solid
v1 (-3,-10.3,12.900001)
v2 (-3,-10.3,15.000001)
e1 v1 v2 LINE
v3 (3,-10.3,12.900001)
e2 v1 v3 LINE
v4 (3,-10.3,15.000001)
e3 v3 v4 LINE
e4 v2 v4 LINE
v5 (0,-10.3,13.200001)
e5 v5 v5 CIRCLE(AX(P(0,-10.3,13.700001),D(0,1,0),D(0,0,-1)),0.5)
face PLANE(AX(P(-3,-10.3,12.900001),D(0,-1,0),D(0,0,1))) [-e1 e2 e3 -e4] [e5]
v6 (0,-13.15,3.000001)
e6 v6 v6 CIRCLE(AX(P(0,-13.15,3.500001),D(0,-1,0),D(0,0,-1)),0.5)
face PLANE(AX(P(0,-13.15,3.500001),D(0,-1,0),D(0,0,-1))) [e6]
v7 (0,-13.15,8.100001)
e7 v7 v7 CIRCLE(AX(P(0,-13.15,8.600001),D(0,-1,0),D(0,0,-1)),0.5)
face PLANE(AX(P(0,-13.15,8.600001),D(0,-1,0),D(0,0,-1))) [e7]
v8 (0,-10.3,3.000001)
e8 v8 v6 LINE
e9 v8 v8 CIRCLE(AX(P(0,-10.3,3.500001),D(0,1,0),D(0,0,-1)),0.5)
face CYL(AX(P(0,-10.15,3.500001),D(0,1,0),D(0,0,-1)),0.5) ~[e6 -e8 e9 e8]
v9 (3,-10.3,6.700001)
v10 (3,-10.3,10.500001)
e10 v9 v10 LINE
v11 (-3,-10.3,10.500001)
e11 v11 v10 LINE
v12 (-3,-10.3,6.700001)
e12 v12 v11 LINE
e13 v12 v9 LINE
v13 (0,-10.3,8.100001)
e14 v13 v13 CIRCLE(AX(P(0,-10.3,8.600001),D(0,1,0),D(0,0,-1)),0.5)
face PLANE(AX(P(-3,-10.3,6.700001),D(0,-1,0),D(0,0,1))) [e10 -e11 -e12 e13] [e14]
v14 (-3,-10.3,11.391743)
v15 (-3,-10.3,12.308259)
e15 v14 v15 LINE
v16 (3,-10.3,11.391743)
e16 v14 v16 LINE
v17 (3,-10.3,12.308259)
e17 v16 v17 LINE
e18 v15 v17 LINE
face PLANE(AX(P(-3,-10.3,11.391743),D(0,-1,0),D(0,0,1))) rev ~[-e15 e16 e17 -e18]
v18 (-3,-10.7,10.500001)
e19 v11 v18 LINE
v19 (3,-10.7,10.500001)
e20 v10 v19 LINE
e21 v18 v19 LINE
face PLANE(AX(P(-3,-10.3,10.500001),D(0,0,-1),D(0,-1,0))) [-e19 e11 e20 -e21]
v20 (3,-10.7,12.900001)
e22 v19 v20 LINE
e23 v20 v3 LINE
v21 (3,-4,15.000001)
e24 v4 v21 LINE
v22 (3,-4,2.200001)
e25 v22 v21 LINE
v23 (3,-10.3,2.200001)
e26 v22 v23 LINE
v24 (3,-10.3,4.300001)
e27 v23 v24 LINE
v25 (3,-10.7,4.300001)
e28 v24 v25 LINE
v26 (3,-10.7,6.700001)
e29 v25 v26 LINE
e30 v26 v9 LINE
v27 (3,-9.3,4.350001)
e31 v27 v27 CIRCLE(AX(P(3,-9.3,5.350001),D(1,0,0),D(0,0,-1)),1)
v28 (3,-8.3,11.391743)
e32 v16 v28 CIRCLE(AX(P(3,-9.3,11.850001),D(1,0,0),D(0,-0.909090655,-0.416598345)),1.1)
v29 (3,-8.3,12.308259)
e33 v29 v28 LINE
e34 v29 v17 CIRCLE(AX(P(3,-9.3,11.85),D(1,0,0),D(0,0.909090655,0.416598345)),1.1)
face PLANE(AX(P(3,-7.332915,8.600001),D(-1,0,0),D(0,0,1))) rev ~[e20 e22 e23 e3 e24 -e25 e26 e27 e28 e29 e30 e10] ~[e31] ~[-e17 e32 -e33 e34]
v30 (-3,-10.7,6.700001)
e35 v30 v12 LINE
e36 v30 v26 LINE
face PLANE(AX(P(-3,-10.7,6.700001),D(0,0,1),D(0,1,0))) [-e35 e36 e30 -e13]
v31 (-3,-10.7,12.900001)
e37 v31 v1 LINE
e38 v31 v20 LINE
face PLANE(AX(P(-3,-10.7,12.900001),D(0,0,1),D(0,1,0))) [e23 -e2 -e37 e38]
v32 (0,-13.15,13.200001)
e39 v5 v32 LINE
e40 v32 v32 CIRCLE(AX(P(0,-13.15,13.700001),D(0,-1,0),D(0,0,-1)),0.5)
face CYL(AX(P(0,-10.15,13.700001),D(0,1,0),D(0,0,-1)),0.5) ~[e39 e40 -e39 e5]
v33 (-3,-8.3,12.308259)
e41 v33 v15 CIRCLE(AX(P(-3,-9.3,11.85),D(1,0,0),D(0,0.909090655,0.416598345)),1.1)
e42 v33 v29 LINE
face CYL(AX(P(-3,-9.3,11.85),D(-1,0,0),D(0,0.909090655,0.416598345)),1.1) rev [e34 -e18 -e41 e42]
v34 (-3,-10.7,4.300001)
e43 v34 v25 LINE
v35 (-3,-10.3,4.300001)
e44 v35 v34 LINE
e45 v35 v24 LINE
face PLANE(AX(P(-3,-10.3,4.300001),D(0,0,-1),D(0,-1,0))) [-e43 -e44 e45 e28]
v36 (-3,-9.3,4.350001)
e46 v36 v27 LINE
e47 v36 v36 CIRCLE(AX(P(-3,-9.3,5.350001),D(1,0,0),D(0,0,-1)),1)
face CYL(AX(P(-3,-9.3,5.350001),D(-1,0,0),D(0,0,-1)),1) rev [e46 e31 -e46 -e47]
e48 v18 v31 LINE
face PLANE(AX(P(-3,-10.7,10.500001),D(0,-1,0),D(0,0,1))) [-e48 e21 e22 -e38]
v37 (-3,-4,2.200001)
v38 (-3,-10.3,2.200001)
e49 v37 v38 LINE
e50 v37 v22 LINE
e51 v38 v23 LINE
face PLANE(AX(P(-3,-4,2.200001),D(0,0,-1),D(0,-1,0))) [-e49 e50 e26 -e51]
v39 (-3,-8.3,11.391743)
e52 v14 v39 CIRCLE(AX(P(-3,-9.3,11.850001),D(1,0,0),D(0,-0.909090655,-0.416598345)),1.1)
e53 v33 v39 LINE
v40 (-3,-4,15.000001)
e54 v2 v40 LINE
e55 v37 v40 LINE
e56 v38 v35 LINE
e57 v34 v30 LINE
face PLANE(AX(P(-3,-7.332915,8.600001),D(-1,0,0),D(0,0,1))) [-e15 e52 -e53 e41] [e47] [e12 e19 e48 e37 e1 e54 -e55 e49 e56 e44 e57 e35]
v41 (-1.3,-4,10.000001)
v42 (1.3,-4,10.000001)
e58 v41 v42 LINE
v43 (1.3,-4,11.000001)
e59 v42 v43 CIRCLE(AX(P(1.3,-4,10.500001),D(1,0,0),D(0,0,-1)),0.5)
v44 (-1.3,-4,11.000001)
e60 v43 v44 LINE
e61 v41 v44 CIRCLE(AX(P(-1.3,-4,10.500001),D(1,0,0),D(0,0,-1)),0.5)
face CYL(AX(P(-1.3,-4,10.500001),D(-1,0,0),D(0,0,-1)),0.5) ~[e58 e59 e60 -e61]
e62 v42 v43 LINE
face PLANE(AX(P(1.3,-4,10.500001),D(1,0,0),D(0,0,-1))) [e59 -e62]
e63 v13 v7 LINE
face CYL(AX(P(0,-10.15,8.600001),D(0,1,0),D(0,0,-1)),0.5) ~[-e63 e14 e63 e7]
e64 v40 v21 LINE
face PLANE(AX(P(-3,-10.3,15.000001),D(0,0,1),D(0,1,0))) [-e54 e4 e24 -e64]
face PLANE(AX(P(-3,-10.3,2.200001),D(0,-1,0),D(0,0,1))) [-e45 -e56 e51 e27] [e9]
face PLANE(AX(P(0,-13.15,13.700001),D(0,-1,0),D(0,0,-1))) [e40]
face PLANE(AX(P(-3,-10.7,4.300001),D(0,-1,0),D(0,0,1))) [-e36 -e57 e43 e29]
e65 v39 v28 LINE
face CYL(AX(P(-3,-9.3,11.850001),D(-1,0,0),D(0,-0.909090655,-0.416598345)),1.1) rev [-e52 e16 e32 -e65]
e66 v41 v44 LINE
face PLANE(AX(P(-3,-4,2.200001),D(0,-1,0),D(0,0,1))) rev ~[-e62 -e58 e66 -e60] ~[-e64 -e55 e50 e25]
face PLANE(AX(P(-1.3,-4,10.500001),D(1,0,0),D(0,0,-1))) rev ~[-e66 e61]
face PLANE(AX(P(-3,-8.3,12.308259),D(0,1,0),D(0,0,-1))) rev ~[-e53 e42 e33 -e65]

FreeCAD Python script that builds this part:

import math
import FreeCAD as App
import Part
import Sketcher
from FreeCAD import Vector
Q = App.Units.Quantity

doc = App.newDocument("Part")
body = doc.addObject("PartDesign::Body", "Body")

# Sketch on XY plane
sketch1 = doc.addObject("Sketcher::SketchObject", "Sketch")
body.addObject(sketch1)
sketch1.AttachmentSupport = (doc.XY_Plane, [""])
sketch1.MapMode = "FlatFace"
sketch1.addGeometry(Part.LineSegment(Vector(6.4, -3.15, 0), Vector(6.4, 3.15, 0)), False)
sketch1.addGeometry(Part.LineSegment(Vector(6.4, 3.15, 0), Vector(-6.4, 3.15, 0)), False)
sketch1.addGeometry(Part.LineSegment(Vector(-6.4, 3.15, 0), Vector(-6.4, -3.15, 0)), False)
sketch1.addGeometry(Part.LineSegment(Vector(-6.4, -3.15, 0), Vector(-4.3, -3.15, 0)), False)
sketch1.addGeometry(Part.LineSegment(Vector(-4.3, -3.15, 0), Vector(-4.3, -3.55, 0)), False)
sketch1.addGeometry(Part.LineSegment(Vector(-4.3, -3.55, 0), Vector(-1.9, -3.55, 0)), False)
sketch1.addGeometry(Part.LineSegment(Vector(-1.9, -3.55, 0), Vector(-1.9, -3.15, 0)), False)
sketch1.addGeometry(Part.LineSegment(Vector(-1.9, -3.15, 0), Vector(1.9, -3.15, 0)), False)
sketch1.addGeometry(Part.LineSegment(Vector(1.9, -3.15, 0), Vector(1.9, -3.55, 0)), False)
sketch1.addGeometry(Part.LineSegment(Vector(1.9, -3.55, 0), Vector(4.3, -3.55, 0)), False)
sketch1.addGeometry(Part.LineSegment(Vector(4.3, -3.55, 0), Vector(4.3, -3.15, 0)), False)
sketch1.addGeometry(Part.LineSegment(Vector(4.3, -3.15, 0), Vector(6.4, -3.15, 0)), False)
sketch1.addGeometry(Part.Circle(Vector(3.25, -2.15, 0), Vector(0, 0, 1), 1), False)
sketch1.addGeometry(Part.LineSegment(Vector(-3.71, -1.15, 0), Vector(-2.79, -1.15, 0)), False)
sketch1.addGeometry(Part.ArcOfCircle(Part.Circle(Vector(-3.25, -2.15, 0), Vector(0, 0, 1), 1.1), math.radians(-65), math.radians(65)), False)
sketch1.addGeometry(Part.LineSegment(Vector(-2.79, -3.15, 0), Vector(-3.71, -3.15, 0)), False)
sketch1.addGeometry(Part.ArcOfCircle(Part.Circle(Vector(-3.25, -2.15, 0), Vector(0, 0, 1), 1.1), math.radians(115), math.radians(245)), False)
sketch1.addConstraint(Sketcher.Constraint("Coincident", 0, 2, 1, 1))
sketch1.addConstraint(Sketcher.Constraint("Coincident", 1, 2, 2, 1))
sketch1.addConstraint(Sketcher.Constraint("Coincident", 2, 2, 3, 1))
sketch1.addConstraint(Sketcher.Constraint("Coincident", 3, 2, 4, 1))
sketch1.addConstraint(Sketcher.Constraint("Coincident", 4, 2, 5, 1))
sketch1.addConstraint(Sketcher.Constraint("Coincident", 5, 2, 6, 1))
sketch1.addConstraint(Sketcher.Constraint("Coincident", 6, 2, 7, 1))
sketch1.addConstraint(Sketcher.Constraint("Coincident", 7, 2, 8, 1))
sketch1.addConstraint(Sketcher.Constraint("Coincident", 8, 2, 9, 1))
sketch1.addConstraint(Sketcher.Constraint("Coincident", 9, 2, 10, 1))
sketch1.addConstraint(Sketcher.Constraint("Coincident", 10, 2, 11, 1))
sketch1.addConstraint(Sketcher.Constraint("Coincident", 11, 2, 0, 1))
sketch1.addConstraint(Sketcher.Constraint("Coincident", 13, 2, 14, 2))
sketch1.addConstraint(Sketcher.Constraint("Coincident", 14, 1, 15, 1))
sketch1.addConstraint(Sketcher.Constraint("Coincident", 15, 2, 16, 2))
sketch1.addConstraint(Sketcher.Constraint("Coincident", 16, 1, 13, 1))
sketch1.addConstraint(Sketcher.Constraint("Vertical", 0))
sketch1.addConstraint(Sketcher.Constraint("Horizontal", 1))
sketch1.addConstraint(Sketcher.Constraint("Vertical", 2))
sketch1.addConstraint(Sketcher.Constraint("Horizontal", 3))
sketch1.addConstraint(Sketcher.Constraint("Vertical", 4))
sketch1.addConstraint(Sketcher.Constraint("Horizontal", 5))
sketch1.addConstraint(Sketcher.Constraint("Vertical", 6))
sketch1.addConstraint(Sketcher.Constraint("Horizontal", 7))
sketch1.addConstraint(Sketcher.Constraint("Vertical", 8))
sketch1.addConstraint(Sketcher.Constraint("Horizontal", 9))
sketch1.addConstraint(Sketcher.Constraint("Vertical", 10))
sketch1.addConstraint(Sketcher.Constraint("Horizontal", 11))
sketch1.addConstraint(Sketcher.Constraint("Horizontal", 13))
sketch1.addConstraint(Sketcher.Constraint("Horizontal", 15))
sketch1.addConstraint(Sketcher.Constraint("Coincident", 16, 3, 14, 3))
sketch1.addConstraint(Sketcher.Constraint("Equal", 14, 16))
sketch1.addConstraint(Sketcher.Constraint("Symmetric", 0, 2, 2, 2, -1, 1))
sketch1.addConstraint(Sketcher.Constraint("Symmetric", 12, 3, 14, 3, -2))
sketch1.addConstraint(Sketcher.Constraint("Symmetric", 5, 2, 8, 2, -2))
sketch1.addConstraint(Sketcher.Constraint("Symmetric", 3, 2, 10, 2, -2))
sketch1.addConstraint(Sketcher.Constraint("Horizontal", 3, 2, 6, 2))
sketch1.addConstraint(Sketcher.Constraint("Horizontal", 11, 2, 14, 1))
sketch1.addConstraint(Sketcher.Constraint("Vertical", 13, 2, 14, 1))
sketch1.addConstraint(Sketcher.Constraint("Diameter", 12, Q("2 mm")))
sketch1.addConstraint(Sketcher.Constraint("Radius", 14, Q("1.1 mm")))
sketch1.addConstraint(Sketcher.Constraint("DistanceX", 1, 2, 1, 1, Q("12.8 mm")))
sketch1.addConstraint(Sketcher.Constraint("DistanceX", 3, 1, 3, 2, Q("2.1 mm")))
sketch1.addConstraint(Sketcher.Constraint("DistanceX", 5, 1, 5, 2, Q("2.4 mm")))
sketch1.addConstraint(Sketcher.Constraint("DistanceY", 0, 1, 0, 2, Q("6.3 mm")))
sketch1.addConstraint(Sketcher.Constraint("DistanceY", 4, 2, 4, 1, Q("0.4 mm")))
sketch1.addConstraint(Sketcher.Constraint("DistanceY", 2, 2, 14, 3, Q("1 mm")))
sketch1.addConstraint(Sketcher.Constraint("DistanceX", 14, 3, 12, 3, Q("6.5 mm")))
pad1 = doc.addObject("PartDesign::Pad", "Pad")
body.addObject(pad1)
pad1.Profile = sketch1
pad1.Length = 6

# Sketch on XZ plane
sketch2 = doc.addObject("Sketcher::SketchObject", "Sketch001")
body.addObject(sketch2)
sketch2.AttachmentSupport = (doc.XZ_Plane, [""])
sketch2.MapMode = "FlatFace"
sketch2.AttachmentOffset = App.Placement(Vector(0, 0, 3), App.Rotation())
sketch2.addGeometry(Part.Circle(Vector(-5.1, 3, 0), Vector(0, 0, 1), 0.5), False)
sketch2.addConstraint(Sketcher.Constraint("Diameter", 0, Q("1 mm")))
sketch2.addConstraint(Sketcher.Constraint("DistanceY", -1, 1, 0, 3, Q("3 mm")))
sketch2.addConstraint(Sketcher.Constraint("DistanceX", 0, 3, -1, 1, Q("5.1 mm")))
pad2 = doc.addObject("PartDesign::Pad", "Pad001")
body.addObject(pad2)
pad2.Profile = sketch2
pad2.Length = 3
doc.recompute()

linearpattern = doc.addObject("PartDesign::LinearPattern", "LinearPattern")
body.addObject(linearpattern)
linearpattern.Originals = [pad2]
linearpattern.Direction = (doc.X_Axis, [""])
linearpattern.Mode = "offset"
linearpattern.Offset = 5.1
linearpattern.Occurrences = 3
body.Tip = linearpattern

# Sketch on XY plane
sketch3 = doc.addObject("Sketcher::SketchObject", "Sketch002")
body.addObject(sketch3)
sketch3.AttachmentSupport = (doc.XY_Plane, [""])
sketch3.MapMode = "FlatFace"
sketch3.AttachmentOffset = App.Placement(Vector(0, 0, 1.7), App.Rotation())
sketch3.addGeometry(Part.Circle(Vector(-1.9, 3.1, 0), Vector(0, 0, 1), 0.5), False)
sketch3.addConstraint(Sketcher.Constraint("Diameter", 0, Q("1 mm")))
sketch3.addConstraint(Sketcher.Constraint("DistanceX", 0, 3, -1, 1, Q("1.9 mm")))
sketch3.addConstraint(Sketcher.Constraint("DistanceY", -1, 1, 0, 3, Q("3.15 mm")))
pad3 = doc.addObject("PartDesign::Pad", "Pad002")
body.addObject(pad3)
pad3.Profile = sketch3
pad3.Length = 2.6
body2 = doc.addObject("PartDesign::Body", "Body001")
doc.recompute()

body.Placement = App.Placement(Vector(0, 0, 0), App.Rotation(Vector(0, 1, 0), 88.936822))
boolean = doc.addObject("PartDesign::Boolean", "Boolean")
body2.addObject(boolean)
boolean.Type = "Fuse"
boolean.addObjects([body])
body3 = doc.addObject("PartDesign::Body", "Body002")
doc.recompute()

body2.Placement = App.Placement(Vector(-7.15, 2.882282, 8.601102), App.Rotation(Vector(0, 0, 1), 270))
boolean2 = doc.addObject("PartDesign::Boolean", "Boolean001")
body3.addObject(boolean2)
boolean2.Type = "Fuse"
boolean2.addObjects([body2])
body4 = doc.addObject("PartDesign::Body", "Body003")
doc.recompute()

body3.Placement = App.Placement(Vector(0, 0, 0), App.Rotation(Vector(1, 0, 0), 1.063178))
boolean3 = doc.addObject("PartDesign::Boolean", "Boolean002")
body4.addObject(boolean3)
boolean3.Type = "Fuse"
boolean3.addObjects([body3])
body5 = doc.addObject("PartDesign::Body", "Body004")
doc.recompute()

body4.Placement = App.Placement(Vector(0.277807, 0, -0.053101), App.Rotation(Vector(0, 0, 1), 270))
boolean4 = doc.addObject("PartDesign::Boolean", "Boolean003")
body5.addObject(boolean4)
boolean4.Type = "Fuse"
boolean4.addObjects([body4])
body6 = doc.addObject("PartDesign::Body", "Body005")
doc.recompute()

body5.Placement = App.Placement(Vector(0, 0.105928, 0), App.Rotation(Vector(0, 0, -1), 90))
boolean5 = doc.addObject("PartDesign::Boolean", "Boolean004")
body6.addObject(boolean5)
boolean5.Type = "Fuse"
boolean5.addObjects([body5])
body7 = doc.addObject("PartDesign::Body", "Body006")
doc.recompute()

body6.Placement = App.Placement(Vector(-0.105928, 0, 0), App.Rotation(Vector(0, 0, -1), 90))
boolean6 = doc.addObject("PartDesign::Boolean", "Boolean005")
body7.addObject(boolean6)
boolean6.Type = "Fuse"
boolean6.addObjects([body6])

doc.recompute()
